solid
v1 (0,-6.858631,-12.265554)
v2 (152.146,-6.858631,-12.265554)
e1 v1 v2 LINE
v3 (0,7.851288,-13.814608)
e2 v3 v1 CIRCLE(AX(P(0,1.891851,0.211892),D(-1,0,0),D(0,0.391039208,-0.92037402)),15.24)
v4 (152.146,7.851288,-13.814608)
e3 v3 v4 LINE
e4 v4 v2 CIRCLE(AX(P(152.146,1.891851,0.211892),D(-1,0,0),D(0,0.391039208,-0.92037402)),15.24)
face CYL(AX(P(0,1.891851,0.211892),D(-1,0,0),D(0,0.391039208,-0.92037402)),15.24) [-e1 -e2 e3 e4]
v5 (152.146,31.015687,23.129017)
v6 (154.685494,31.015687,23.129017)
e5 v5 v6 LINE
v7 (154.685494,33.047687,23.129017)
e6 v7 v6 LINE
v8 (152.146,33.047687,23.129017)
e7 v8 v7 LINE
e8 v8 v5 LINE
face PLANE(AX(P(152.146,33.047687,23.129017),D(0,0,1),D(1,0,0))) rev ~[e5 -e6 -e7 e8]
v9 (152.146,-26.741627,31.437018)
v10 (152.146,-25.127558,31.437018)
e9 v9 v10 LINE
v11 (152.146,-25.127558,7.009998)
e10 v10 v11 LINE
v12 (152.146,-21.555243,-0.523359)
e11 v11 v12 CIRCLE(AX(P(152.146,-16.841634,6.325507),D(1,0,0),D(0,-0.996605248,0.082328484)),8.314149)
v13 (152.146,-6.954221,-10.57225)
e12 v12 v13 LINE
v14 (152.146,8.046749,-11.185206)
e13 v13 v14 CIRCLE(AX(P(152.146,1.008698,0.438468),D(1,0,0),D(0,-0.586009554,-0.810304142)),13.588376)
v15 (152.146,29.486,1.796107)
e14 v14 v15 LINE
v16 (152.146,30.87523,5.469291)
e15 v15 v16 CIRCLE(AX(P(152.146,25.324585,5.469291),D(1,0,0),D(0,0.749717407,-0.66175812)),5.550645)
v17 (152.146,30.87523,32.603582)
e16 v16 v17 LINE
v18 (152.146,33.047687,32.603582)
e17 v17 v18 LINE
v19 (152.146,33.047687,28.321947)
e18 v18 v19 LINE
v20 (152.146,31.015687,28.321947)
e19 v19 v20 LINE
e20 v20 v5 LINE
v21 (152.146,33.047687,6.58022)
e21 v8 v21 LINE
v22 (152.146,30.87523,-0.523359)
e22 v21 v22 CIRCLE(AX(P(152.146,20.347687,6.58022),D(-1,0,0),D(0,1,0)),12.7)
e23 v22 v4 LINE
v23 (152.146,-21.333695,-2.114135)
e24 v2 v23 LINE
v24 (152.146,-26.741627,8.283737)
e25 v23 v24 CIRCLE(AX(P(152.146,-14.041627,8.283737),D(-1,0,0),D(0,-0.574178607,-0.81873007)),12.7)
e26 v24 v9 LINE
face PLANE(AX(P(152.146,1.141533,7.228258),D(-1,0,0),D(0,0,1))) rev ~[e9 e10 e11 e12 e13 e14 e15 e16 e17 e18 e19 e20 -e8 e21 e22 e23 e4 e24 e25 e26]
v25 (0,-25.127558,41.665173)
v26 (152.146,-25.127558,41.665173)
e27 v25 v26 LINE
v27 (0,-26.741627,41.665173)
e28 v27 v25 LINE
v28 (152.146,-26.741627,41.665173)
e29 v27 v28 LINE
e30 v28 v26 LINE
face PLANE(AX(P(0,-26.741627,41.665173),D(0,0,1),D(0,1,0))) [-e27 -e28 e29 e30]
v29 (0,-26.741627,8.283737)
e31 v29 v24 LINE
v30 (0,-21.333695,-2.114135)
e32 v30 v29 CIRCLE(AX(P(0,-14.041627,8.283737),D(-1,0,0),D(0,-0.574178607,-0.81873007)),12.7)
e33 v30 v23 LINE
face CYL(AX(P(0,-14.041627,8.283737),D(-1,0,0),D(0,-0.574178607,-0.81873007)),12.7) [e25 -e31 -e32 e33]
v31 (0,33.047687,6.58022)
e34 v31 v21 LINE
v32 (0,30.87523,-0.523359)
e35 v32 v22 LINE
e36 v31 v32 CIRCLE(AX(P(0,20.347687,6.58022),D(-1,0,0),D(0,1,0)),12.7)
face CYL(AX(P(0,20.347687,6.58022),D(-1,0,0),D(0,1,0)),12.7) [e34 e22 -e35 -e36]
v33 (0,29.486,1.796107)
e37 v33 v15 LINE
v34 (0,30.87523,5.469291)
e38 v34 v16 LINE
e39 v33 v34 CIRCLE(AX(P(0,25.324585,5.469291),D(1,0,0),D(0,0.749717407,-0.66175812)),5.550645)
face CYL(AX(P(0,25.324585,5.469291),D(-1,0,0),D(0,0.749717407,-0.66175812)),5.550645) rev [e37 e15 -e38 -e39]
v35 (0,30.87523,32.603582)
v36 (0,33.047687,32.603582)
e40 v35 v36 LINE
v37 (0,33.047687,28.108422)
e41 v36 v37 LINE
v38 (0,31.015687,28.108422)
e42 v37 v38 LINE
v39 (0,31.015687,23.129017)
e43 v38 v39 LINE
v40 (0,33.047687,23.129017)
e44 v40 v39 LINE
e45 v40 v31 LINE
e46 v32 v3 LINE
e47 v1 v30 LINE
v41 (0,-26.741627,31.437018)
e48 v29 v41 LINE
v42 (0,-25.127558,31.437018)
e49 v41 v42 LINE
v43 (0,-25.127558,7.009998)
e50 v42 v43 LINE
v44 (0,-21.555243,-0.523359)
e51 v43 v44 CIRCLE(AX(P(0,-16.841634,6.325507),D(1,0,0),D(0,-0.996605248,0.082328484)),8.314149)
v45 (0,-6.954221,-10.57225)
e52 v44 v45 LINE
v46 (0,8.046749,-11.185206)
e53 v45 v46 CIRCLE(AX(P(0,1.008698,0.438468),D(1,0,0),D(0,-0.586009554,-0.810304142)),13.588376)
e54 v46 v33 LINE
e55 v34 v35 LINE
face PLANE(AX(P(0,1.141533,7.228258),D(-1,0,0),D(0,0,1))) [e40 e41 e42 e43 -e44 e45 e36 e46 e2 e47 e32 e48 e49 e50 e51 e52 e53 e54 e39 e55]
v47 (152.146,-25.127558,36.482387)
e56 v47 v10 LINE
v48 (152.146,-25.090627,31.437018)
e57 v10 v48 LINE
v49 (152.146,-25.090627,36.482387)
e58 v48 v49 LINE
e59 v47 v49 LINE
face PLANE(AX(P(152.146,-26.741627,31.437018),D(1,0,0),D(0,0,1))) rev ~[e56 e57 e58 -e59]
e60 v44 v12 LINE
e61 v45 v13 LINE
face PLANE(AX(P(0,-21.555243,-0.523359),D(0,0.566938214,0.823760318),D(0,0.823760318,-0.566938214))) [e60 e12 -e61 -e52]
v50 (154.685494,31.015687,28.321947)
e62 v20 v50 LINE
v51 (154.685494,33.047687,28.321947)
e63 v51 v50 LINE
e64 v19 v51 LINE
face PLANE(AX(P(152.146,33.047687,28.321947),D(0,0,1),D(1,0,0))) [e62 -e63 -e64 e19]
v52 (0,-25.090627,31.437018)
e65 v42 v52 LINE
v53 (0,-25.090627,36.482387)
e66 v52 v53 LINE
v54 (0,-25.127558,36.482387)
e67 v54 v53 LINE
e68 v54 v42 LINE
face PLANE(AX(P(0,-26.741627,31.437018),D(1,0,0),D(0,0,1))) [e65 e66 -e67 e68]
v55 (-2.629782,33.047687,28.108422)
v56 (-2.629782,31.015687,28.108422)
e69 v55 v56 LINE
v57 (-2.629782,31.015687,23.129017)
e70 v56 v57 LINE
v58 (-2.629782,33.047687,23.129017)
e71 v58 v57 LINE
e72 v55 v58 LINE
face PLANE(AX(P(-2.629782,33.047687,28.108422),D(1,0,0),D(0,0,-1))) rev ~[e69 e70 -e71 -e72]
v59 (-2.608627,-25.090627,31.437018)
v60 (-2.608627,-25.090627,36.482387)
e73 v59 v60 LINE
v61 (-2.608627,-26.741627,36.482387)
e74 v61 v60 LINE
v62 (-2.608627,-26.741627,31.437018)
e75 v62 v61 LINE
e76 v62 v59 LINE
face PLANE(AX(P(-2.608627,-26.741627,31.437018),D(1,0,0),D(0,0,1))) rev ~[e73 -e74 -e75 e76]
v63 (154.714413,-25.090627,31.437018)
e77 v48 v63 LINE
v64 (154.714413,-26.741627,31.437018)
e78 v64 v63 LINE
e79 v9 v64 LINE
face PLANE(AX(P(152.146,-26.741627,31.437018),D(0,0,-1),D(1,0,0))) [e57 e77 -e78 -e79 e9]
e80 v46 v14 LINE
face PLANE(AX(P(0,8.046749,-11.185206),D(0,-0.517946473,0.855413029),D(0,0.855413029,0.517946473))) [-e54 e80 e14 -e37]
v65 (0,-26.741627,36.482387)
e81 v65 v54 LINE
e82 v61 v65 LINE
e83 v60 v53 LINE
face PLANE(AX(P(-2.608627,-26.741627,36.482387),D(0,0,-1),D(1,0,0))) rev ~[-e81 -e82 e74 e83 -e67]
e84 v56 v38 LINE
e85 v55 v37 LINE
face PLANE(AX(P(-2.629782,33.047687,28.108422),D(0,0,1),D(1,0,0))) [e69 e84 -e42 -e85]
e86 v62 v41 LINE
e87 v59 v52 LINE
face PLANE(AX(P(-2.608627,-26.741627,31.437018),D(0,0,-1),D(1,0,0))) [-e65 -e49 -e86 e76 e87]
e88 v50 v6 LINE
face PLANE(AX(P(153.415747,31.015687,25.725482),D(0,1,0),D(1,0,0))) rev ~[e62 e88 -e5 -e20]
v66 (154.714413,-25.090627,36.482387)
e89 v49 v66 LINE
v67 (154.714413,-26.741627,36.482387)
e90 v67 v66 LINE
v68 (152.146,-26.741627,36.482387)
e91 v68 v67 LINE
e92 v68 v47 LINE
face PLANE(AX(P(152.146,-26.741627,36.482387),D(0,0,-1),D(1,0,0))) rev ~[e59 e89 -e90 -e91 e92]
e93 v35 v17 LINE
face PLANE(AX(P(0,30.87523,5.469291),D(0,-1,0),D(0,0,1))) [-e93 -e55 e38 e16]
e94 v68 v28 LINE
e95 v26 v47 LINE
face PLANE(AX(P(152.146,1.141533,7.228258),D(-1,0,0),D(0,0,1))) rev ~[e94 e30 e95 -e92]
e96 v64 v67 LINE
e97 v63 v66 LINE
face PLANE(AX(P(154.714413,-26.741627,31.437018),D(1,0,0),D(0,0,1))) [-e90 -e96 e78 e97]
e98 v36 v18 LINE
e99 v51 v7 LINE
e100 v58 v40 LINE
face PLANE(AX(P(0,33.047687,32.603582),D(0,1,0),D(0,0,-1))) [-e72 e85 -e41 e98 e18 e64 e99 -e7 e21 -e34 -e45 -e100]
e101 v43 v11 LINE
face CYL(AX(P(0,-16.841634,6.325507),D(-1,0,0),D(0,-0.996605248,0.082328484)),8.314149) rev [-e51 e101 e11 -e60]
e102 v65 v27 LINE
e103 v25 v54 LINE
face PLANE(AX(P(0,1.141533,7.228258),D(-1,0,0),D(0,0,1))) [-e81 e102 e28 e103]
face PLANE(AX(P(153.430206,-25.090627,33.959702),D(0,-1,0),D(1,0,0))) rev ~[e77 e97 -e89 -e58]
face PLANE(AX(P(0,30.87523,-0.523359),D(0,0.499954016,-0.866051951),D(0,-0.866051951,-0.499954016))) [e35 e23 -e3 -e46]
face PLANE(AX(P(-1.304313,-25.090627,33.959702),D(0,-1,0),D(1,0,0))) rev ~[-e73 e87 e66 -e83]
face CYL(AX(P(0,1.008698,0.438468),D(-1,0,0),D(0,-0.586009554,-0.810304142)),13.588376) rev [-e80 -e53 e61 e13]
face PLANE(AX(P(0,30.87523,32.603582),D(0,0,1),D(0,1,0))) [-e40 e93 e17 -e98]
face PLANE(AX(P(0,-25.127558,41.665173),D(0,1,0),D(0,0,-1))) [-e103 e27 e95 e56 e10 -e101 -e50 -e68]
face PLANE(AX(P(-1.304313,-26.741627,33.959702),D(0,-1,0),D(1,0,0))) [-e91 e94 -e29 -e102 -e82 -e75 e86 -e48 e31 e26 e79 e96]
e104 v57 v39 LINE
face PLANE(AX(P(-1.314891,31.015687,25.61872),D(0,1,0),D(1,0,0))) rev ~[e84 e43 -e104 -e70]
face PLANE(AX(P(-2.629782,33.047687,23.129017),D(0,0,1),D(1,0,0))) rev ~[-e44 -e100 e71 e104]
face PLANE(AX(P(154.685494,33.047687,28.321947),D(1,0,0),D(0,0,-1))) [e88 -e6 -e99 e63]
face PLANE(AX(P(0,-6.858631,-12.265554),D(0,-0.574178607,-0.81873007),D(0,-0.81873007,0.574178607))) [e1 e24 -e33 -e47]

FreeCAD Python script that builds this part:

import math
import FreeCAD as App
import Part
import Sketcher
Q = App.Units.Quantity


def add_polygon(sketch, points):
    """Adds a closed chain of lines whose ends are joined by coincident constraints."""
    first, n = sketch.GeometryCount, len(points)
    for a, b in zip(points, points[1:] + points[:1]):
        sketch.addGeometry(Part.LineSegment(App.Vector(*a, 0), App.Vector(*b, 0)), False)
    for i in range(n):
        sketch.addConstraint(Sketcher.Constraint("Coincident", first + i, 2, first + (i + 1) % n, 1))

doc = App.newDocument("Part")
body = doc.addObject("PartDesign::Body", "Body")

sketch1 = body.newObject("Sketcher::SketchObject", "Sketch")
sketch1.AttachmentSupport = (doc.getObject("YZ_Plane"), [""])
sketch1.MapMode = "FlatFace"
sketch1.addGeometry([
    Part.LineSegment(App.Vector(33, 6.6, 0), App.Vector(33, 32.6, 0)),
    Part.LineSegment(App.Vector(33, 32.6, 0), App.Vector(30.9, 32.6, 0)),
    Part.LineSegment(App.Vector(30.9, 32.6, 0), App.Vector(30.9, 5.5, 0)),
    Part.ArcOfCircle(Part.Circle(App.Vector(25.3, 5.5, 0), App.Vector(0, 0, 1), 5.6), math.radians(-41), math.radians(0)),
    Part.LineSegment(App.Vector(29.5, 1.8, 0), App.Vector(8, -11.2, 0)),
    Part.ArcOfCircle(Part.Circle(App.Vector(1, 0.4, 0), App.Vector(0, 0, 1), 13.6), math.radians(-126), math.radians(-59)),
    Part.LineSegment(App.Vector(-7, -10.6, 0), App.Vector(-21.6, -0.5, 0)),
    Part.ArcOfCircle(Part.Circle(App.Vector(-16.8, 6.3, 0), App.Vector(0, 0, 1), 8.3), math.radians(175), math.radians(235)),
    Part.LineSegment(App.Vector(-25.1, 7, 0), App.Vector(-25.1, 41.7, 0)),
    Part.LineSegment(App.Vector(-25.1, 41.7, 0), App.Vector(-26.7, 41.7, 0)),
    Part.LineSegment(App.Vector(-26.7, 41.7, 0), App.Vector(-26.7, 8.3, 0)),
    Part.ArcOfCircle(Part.Circle(App.Vector(-14, 8.3, 0), App.Vector(0, 0, 1), 12.7), math.radians(180), math.radians(235)),
    Part.LineSegment(App.Vector(-21.3, -2.1, 0), App.Vector(-6.9, -12.3, 0)),
    Part.ArcOfCircle(Part.Circle(App.Vector(1.9, 0.2, 0), App.Vector(0, 0, 1), 15.2), math.radians(-125), math.radians(-67)),
    Part.LineSegment(App.Vector(7.9, -13.8, 0), App.Vector(30.9, -0.5, 0)),
    Part.ArcOfCircle(Part.Circle(App.Vector(20.3, 6.6, 0), App.Vector(0, 0, 1), 12.7), math.radians(-34), math.radians(0)),
], False)
sketch1.addConstraint([
    Sketcher.Constraint("Coincident", 0, 2, 1, 1),
    Sketcher.Constraint("Coincident", 1, 2, 2, 1),
    Sketcher.Constraint("Tangent", 2, 2, 3, 2),
    Sketcher.Constraint("Coincident", 3, 1, 4, 1),
    Sketcher.Constraint("Tangent", 4, 2, 5, 2),
    Sketcher.Constraint("Coincident", 5, 1, 6, 1),
    Sketcher.Constraint("Tangent", 6, 2, 7, 2),
    Sketcher.Constraint("Coincident", 7, 1, 8, 1),
    Sketcher.Constraint("Coincident", 8, 2, 9, 1),
    Sketcher.Constraint("Coincident", 9, 2, 10, 1),
    Sketcher.Constraint("Tangent", 10, 2, 11, 1),
    Sketcher.Constraint("Tangent", 11, 2, 12, 1),
    Sketcher.Constraint("Tangent", 12, 2, 13, 1),
    Sketcher.Constraint("Coincident", 13, 2, 14, 1),
    Sketcher.Constraint("Coincident", 14, 2, 15, 1),
    Sketcher.Constraint("Tangent", 15, 2, 0, 1),
    Sketcher.Constraint("Vertical", 0),
    Sketcher.Constraint("Horizontal", 1),
    Sketcher.Constraint("Vertical", 2),
    Sketcher.Constraint("Vertical", 8),
    Sketcher.Constraint("Horizontal", 9),
    Sketcher.Constraint("Vertical", 10),
    Sketcher.Constraint("Equal", 11, 15),
    Sketcher.Constraint("Horizontal", 6, 2, 14, 2),
    Sketcher.Constraint("Vertical", 2, 2, 14, 2),
    Sketcher.Constraint("Radius", 11, Q("0.5 in")),
    Sketcher.Constraint("Radius", 13, Q("0.6 in")),
    Sketcher.Constraint("Radius", 7, 8.314149),
    Sketcher.Constraint("Radius", 3, 5.550645),
    Sketcher.Constraint("Radius", 5, 13.588376),
    Sketcher.Constraint("DistanceX", 9, 2, 9, 1, 1.614068),
    Sketcher.Constraint("DistanceY", 0, 1, 0, 2, 26.023362),
    Sketcher.Constraint("DistanceY", 2, 2, 2, 1, 27.134291),
    Sketcher.Constraint("DistanceX", -1, 1, 3, 1, 29.486),
    Sketcher.Constraint("DistanceY", 13, 3, 3, 3, 5.257399),
    Sketcher.Constraint("DistanceX", 15, 3, 3, 3, 4.976898),
    Sketcher.Constraint("DistanceX", 13, 3, 4, 2, 6.154898),
    Sketcher.Constraint("DistanceY", 4, 2, 13, 3, 11.397098),
    Sketcher.Constraint("DistanceY", 13, 2, 4, 2, 2.629402),
    Sketcher.Constraint("Distance", 4, 25.06304),
    Sketcher.Constraint("DistanceY", 8, 1, 8, 2, 34.655175),
    Sketcher.Constraint("DistanceY", 10, 2, 10, 1, 33.381436),
    Sketcher.Constraint("DistanceY", -1, 1, 3, 3, 5.469291),
    Sketcher.Constraint("DistanceX", -1, 1, 13, 3, 1.891851),
    Sketcher.Constraint("DistanceX", 5, 1, -1, 1, 6.954221),
    Sketcher.Constraint("DistanceX", 7, 1, -1, 1, 25.127558),
    Sketcher.Constraint("DistanceX", 12, 2, -1, 1, 6.858631),
])
pad1 = body.newObject("PartDesign::Pad", "Pad")
pad1.Profile = sketch1
pad1.Length = Q("5.99 in")

sketch2 = body.newObject("Sketcher::SketchObject", "Sketch001")
sketch2.AttachmentSupport = (doc.getObject("XZ_Plane"), [""])
sketch2.MapMode = "FlatFace"
sketch2.AttachmentOffset = App.Placement(App.Vector(0, 0, -33.047687), App.Rotation())
add_polygon(sketch2, [(-2.6, 23.1), (-2.6, 28.1), (0, 28.1), (0, 23.1)])
add_polygon(sketch2, [(152.1, 23.1), (152.1, 28.3), (154.7, 28.3), (154.7, 23.1)])
sketch2.addConstraint([
    Sketcher.Constraint("Vertical", 0),
    Sketcher.Constraint("Horizontal", 1),
    Sketcher.Constraint("Vertical", 2),
    Sketcher.Constraint("Horizontal", 3),
    Sketcher.Constraint("Vertical", 4),
    Sketcher.Constraint("Horizontal", 5),
    Sketcher.Constraint("Vertical", 6),
    Sketcher.Constraint("Horizontal", 7),
    Sketcher.Constraint("PointOnObject", 1, 2, -2),
    Sketcher.Constraint("Horizontal", 3, 2, 6, 2),
    Sketcher.Constraint("DistanceX", -1, 1, 4, 2, Q("5.99 in")),
    Sketcher.Constraint("DistanceX", 1, 1, 1, 2, 2.629782),
    Sketcher.Constraint("DistanceY", 4, 1, 4, 2, 5.19293),
    Sketcher.Constraint("DistanceX", 5, 1, 5, 2, 2.539494),
    Sketcher.Constraint("DistanceY", 0, 1, 0, 2, 4.979405),
    Sketcher.Constraint("DistanceY", -1, 1, 0, 2, 28.108422),
])
pad2 = body.newObject("PartDesign::Pad", "Pad001")
pad2.Profile = sketch2
pad2.Length = Q("0.08 in")

sketch3 = body.newObject("Sketcher::SketchObject", "Sketch002")
sketch3.AttachmentSupport = (doc.getObject("XZ_Plane"), [""])
sketch3.MapMode = "FlatFace"
sketch3.AttachmentOffset = App.Placement(App.Vector(0, 0, 26.741627), App.Rotation())
add_polygon(sketch3, [(-2.6, 36.5), (-2.6, 31.4), (0, 31.4), (0, 36.5)])
add_polygon(sketch3, [(152.1, 36.5), (152.1, 31.4), (154.7, 31.4), (154.7, 36.5)])
sketch3.addConstraint([
    Sketcher.Constraint("Vertical", 0),
    Sketcher.Constraint("Horizontal", 1),
    Sketcher.Constraint("Vertical", 2),
    Sketcher.Constraint("Horizontal", 3),
    Sketcher.Constraint("Vertical", 4),
    Sketcher.Constraint("Horizontal", 5),
    Sketcher.Constraint("Vertical", 6),
    Sketcher.Constraint("Horizontal", 7),
    Sketcher.Constraint("PointOnObject", 1, 2, -2),
    Sketcher.Constraint("Horizontal", 1, 2, 4, 2),
    Sketcher.Constraint("Horizontal", 3, 2, 6, 2),
    Sketcher.Constraint("DistanceX", -1, 1, 4, 2, Q("5.99 in")),
    Sketcher.Constraint("DistanceY", 0, 2, 0, 1, 5.045369),
    Sketcher.Constraint("DistanceX", 1, 1, 1, 2, 2.608627),
    Sketcher.Constraint("DistanceX", 5, 1, 5, 2, 2.568413),
    Sketcher.Constraint("DistanceY", -1, 1, 0, 2, 31.437018),
])
pad3 = body.newObject("PartDesign::Pad", "Pad002")
pad3.Profile = sketch3
pad3.Length = Q("0.065 in")
pad3.Reversed = True

doc.recompute()
